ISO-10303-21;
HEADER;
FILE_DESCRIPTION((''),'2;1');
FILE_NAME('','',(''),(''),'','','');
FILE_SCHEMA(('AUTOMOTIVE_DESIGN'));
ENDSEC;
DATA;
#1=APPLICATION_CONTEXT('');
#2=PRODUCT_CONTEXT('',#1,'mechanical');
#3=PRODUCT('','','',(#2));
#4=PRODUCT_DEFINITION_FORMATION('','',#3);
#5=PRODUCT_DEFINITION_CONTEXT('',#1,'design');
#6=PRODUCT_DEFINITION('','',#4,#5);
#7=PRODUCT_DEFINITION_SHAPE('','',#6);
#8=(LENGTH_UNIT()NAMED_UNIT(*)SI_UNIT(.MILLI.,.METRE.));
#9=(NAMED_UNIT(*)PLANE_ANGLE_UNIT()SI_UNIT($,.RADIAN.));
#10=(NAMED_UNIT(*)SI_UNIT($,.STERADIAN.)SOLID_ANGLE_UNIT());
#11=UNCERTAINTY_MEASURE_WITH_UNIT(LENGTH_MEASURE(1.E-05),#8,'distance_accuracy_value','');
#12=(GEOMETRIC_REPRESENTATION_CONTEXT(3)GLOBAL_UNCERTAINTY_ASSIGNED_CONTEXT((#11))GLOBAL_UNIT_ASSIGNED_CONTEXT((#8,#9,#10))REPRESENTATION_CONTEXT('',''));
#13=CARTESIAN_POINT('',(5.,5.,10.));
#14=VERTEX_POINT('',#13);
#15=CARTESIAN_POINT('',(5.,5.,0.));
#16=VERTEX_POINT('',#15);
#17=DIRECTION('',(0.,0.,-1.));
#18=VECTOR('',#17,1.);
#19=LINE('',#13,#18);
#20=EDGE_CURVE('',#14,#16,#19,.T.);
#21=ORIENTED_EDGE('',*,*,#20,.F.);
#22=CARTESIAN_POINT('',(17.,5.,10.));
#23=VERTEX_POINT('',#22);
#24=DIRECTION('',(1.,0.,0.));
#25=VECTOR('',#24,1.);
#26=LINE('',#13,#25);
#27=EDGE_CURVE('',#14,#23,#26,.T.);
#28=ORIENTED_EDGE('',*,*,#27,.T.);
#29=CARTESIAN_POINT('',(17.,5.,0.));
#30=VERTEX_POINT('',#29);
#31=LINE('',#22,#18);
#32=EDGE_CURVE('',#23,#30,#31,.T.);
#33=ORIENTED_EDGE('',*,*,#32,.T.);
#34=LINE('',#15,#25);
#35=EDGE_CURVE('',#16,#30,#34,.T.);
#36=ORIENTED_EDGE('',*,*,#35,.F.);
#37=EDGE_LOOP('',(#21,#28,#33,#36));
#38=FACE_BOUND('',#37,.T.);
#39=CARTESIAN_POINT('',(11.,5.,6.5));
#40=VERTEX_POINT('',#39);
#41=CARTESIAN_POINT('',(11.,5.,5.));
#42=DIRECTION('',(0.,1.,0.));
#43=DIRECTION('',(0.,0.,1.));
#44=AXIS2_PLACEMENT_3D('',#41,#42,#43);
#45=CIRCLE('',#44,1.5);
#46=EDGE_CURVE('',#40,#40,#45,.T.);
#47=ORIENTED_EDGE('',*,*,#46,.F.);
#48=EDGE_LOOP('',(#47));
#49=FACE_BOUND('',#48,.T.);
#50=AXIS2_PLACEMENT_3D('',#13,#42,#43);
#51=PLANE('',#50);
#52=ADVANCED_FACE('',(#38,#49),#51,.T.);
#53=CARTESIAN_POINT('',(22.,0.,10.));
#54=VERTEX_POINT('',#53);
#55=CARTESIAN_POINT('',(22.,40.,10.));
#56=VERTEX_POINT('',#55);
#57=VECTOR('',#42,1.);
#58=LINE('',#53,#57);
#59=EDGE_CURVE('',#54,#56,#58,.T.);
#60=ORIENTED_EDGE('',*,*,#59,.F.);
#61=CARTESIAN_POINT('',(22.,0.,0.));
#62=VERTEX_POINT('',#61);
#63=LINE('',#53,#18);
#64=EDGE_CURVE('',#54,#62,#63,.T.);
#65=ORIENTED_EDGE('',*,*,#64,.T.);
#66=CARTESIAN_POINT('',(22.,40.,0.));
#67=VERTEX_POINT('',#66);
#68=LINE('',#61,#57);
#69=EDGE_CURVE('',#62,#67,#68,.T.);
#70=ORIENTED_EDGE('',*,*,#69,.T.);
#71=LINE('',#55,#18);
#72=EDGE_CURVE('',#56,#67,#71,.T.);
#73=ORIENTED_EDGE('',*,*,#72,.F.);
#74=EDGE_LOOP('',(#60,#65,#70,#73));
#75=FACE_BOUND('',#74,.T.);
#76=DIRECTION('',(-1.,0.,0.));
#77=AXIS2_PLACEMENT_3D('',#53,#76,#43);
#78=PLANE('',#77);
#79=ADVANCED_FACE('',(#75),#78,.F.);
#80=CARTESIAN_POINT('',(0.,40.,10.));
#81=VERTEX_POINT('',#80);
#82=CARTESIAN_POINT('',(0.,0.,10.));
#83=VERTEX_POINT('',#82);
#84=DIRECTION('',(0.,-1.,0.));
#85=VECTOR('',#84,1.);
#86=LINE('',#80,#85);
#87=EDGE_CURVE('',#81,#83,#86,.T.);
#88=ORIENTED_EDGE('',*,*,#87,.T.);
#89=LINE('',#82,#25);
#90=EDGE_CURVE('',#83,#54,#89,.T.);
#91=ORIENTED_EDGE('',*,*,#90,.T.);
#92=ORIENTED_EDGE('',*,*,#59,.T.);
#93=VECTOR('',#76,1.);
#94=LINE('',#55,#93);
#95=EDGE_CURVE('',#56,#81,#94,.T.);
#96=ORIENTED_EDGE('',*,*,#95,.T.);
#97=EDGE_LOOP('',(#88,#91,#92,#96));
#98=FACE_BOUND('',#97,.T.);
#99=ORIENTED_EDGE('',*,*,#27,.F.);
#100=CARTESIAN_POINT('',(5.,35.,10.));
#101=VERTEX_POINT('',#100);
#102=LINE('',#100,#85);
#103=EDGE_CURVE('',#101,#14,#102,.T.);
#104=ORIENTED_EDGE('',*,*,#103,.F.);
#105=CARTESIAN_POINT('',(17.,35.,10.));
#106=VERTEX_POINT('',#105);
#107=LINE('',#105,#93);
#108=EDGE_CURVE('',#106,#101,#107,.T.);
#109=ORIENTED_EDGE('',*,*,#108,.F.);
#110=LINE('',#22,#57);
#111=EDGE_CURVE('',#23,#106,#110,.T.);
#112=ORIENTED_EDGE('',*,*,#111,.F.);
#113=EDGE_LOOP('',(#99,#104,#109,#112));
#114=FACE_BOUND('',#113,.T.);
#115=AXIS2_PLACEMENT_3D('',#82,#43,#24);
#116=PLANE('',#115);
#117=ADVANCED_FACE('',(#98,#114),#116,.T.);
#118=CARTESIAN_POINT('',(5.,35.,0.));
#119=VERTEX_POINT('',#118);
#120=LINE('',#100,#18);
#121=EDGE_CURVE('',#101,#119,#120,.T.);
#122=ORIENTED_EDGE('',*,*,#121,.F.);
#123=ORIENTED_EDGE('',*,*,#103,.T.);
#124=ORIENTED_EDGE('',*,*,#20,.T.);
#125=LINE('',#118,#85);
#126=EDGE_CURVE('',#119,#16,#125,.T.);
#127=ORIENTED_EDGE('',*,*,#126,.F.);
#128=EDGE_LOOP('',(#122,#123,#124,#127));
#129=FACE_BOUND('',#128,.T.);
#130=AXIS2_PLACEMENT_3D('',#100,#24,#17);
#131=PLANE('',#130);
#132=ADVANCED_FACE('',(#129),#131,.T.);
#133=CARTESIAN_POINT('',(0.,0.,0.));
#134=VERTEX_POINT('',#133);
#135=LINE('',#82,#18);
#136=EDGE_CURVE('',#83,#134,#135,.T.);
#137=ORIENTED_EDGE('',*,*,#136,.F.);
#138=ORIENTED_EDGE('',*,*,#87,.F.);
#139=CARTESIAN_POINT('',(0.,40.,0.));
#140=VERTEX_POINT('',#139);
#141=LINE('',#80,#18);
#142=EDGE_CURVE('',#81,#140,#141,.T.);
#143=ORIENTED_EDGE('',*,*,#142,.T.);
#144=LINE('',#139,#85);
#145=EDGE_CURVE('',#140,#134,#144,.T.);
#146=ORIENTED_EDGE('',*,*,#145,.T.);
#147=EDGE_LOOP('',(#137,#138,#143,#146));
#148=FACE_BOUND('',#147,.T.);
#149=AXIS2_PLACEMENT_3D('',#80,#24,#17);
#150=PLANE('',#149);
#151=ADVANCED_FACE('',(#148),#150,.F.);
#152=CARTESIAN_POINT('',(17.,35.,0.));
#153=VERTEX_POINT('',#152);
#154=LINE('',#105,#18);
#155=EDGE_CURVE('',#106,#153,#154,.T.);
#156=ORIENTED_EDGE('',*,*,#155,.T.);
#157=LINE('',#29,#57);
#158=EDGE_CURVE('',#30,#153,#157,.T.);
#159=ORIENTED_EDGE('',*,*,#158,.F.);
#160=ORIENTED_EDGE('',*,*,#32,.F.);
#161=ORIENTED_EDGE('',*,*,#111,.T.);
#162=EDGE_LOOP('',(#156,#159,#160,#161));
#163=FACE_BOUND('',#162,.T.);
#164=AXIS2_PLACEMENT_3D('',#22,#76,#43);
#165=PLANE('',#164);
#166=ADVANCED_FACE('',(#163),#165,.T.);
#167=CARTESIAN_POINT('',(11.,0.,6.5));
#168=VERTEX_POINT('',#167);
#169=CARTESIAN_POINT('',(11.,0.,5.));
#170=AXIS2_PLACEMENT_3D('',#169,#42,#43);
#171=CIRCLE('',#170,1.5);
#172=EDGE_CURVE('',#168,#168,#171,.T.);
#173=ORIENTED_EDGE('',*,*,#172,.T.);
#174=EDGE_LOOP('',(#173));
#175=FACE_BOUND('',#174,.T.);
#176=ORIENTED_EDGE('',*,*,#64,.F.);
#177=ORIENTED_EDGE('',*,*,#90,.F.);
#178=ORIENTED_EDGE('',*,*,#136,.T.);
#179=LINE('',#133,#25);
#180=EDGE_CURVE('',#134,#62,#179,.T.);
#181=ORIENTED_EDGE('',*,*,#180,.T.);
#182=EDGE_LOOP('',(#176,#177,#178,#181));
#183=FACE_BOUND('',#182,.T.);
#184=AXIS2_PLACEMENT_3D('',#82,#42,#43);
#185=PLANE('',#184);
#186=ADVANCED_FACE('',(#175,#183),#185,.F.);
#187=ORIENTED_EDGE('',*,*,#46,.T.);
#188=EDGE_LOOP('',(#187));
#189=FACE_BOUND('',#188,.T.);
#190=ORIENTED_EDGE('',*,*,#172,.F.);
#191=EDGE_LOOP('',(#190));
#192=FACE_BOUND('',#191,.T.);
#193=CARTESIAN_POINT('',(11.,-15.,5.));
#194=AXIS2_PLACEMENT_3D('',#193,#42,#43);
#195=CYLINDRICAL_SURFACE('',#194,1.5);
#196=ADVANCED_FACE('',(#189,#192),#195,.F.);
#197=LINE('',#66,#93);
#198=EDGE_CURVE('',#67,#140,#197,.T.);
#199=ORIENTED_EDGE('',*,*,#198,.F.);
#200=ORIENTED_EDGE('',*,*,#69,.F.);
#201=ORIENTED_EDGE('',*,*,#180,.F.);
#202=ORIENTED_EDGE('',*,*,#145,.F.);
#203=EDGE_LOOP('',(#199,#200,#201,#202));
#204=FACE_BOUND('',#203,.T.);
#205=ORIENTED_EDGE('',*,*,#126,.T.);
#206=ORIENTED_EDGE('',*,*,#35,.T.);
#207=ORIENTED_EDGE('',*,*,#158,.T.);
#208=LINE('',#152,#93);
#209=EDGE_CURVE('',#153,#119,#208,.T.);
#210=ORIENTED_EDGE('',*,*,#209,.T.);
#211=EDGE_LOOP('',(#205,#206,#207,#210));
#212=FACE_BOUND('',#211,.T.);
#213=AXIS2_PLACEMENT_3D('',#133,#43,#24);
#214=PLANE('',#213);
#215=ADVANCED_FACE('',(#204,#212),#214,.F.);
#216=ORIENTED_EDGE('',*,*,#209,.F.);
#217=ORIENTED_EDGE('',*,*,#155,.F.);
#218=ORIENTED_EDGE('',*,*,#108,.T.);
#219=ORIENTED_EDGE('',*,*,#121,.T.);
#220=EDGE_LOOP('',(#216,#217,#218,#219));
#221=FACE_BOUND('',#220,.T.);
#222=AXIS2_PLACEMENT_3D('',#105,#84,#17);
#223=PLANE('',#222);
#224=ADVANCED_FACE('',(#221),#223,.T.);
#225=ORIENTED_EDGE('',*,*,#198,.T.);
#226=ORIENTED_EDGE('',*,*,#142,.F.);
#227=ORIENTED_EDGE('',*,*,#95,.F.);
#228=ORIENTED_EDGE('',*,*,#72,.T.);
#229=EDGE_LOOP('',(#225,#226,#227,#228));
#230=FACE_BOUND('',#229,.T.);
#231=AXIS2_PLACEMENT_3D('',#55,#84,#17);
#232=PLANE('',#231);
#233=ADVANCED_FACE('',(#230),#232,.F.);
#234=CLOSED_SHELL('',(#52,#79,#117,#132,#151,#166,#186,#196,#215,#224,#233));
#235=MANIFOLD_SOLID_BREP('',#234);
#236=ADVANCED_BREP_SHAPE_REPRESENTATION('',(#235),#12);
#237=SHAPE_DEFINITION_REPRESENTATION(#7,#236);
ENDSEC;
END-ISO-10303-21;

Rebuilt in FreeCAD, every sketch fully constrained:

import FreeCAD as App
import Part
import Sketcher
from FreeCAD import Vector

doc = App.newDocument("Part")
body = doc.addObject("PartDesign::Body", "Body")

# Sketch on XY plane
sketch1 = body.newObject("Sketcher::SketchObject", "Sketch")
sketch1.AttachmentSupport = (doc.getObject("XY_Plane"), [""])
sketch1.MapMode = "FlatFace"
sketch1.addGeometry(Part.LineSegment(Vector(0, 40, 0), Vector(0, 0, 0)), False)
sketch1.addGeometry(Part.LineSegment(Vector(0, 0, 0), Vector(22, 0, 0)), False)
sketch1.addGeometry(Part.LineSegment(Vector(22, 0, 0), Vector(22, 40, 0)), False)
sketch1.addGeometry(Part.LineSegment(Vector(22, 40, 0), Vector(0, 40, 0)), False)
sketch1.addGeometry(Part.LineSegment(Vector(17, 5, 0), Vector(5, 5, 0)), False)
sketch1.addGeometry(Part.LineSegment(Vector(5, 5, 0), Vector(5, 35, 0)), False)
sketch1.addGeometry(Part.LineSegment(Vector(5, 35, 0), Vector(17, 35, 0)), False)
sketch1.addGeometry(Part.LineSegment(Vector(17, 35, 0), Vector(17, 5, 0)), False)
sketch1.addConstraint(Sketcher.Constraint("Coincident", 0, 2, 1, 1))
sketch1.addConstraint(Sketcher.Constraint("Coincident", 1, 2, 2, 1))
sketch1.addConstraint(Sketcher.Constraint("Coincident", 2, 2, 3, 1))
sketch1.addConstraint(Sketcher.Constraint("Coincident", 3, 2, 0, 1))
sketch1.addConstraint(Sketcher.Constraint("Coincident", 4, 2, 5, 1))
sketch1.addConstraint(Sketcher.Constraint("Coincident", 5, 2, 6, 1))
sketch1.addConstraint(Sketcher.Constraint("Coincident", 6, 2, 7, 1))
sketch1.addConstraint(Sketcher.Constraint("Coincident", 7, 2, 4, 1))
sketch1.addConstraint(Sketcher.Constraint("Vertical", 0))
sketch1.addConstraint(Sketcher.Constraint("Horizontal", 1))
sketch1.addConstraint(Sketcher.Constraint("Vertical", 2))
sketch1.addConstraint(Sketcher.Constraint("Horizontal", 3))
sketch1.addConstraint(Sketcher.Constraint("Horizontal", 4))
sketch1.addConstraint(Sketcher.Constraint("Vertical", 5))
sketch1.addConstraint(Sketcher.Constraint("Horizontal", 6))
sketch1.addConstraint(Sketcher.Constraint("Vertical", 7))
sketch1.addConstraint(Sketcher.Constraint("Coincident", 0, 2, -1, 1))
sketch1.addConstraint(Sketcher.Constraint("DistanceX", 1, 1, 1, 2, 22.0))
sketch1.addConstraint(Sketcher.Constraint("DistanceX", 4, 2, 4, 1, 12.0))
sketch1.addConstraint(Sketcher.Constraint("DistanceY", 0, 2, 0, 1, 40.0))
sketch1.addConstraint(Sketcher.Constraint("DistanceY", 5, 1, 5, 2, 30.0))
sketch1.addConstraint(Sketcher.Constraint("DistanceX", -1, 1, 4, 2, 5.0))
sketch1.addConstraint(Sketcher.Constraint("DistanceY", -1, 1, 4, 2, 5.0))
pad1 = body.newObject("PartDesign::Pad", "Pad")
pad1.Profile = sketch1
pad1.Length = 10

# Sketch on XZ plane
sketch2 = body.newObject("Sketcher::SketchObject", "Sketch001")
sketch2.AttachmentSupport = (doc.getObject("XZ_Plane"), [""])
sketch2.MapMode = "FlatFace"
sketch2.addGeometry(Part.Circle(Vector(11, 5, 0), Vector(0, 0, 1), 1.5), False)
sketch2.addConstraint(Sketcher.Constraint("Diameter", 0, 3.0))
sketch2.addConstraint(Sketcher.Constraint("DistanceX", -1, 1, 0, 3, 11.0))
sketch2.addConstraint(Sketcher.Constraint("DistanceY", -1, 1, 0, 3, 5.0))
pocket1 = body.newObject("PartDesign::Pocket", "Pocket")
pocket1.Profile = sketch2
pocket1.Length = 30
pocket1.Midplane = True

doc.recompute()
